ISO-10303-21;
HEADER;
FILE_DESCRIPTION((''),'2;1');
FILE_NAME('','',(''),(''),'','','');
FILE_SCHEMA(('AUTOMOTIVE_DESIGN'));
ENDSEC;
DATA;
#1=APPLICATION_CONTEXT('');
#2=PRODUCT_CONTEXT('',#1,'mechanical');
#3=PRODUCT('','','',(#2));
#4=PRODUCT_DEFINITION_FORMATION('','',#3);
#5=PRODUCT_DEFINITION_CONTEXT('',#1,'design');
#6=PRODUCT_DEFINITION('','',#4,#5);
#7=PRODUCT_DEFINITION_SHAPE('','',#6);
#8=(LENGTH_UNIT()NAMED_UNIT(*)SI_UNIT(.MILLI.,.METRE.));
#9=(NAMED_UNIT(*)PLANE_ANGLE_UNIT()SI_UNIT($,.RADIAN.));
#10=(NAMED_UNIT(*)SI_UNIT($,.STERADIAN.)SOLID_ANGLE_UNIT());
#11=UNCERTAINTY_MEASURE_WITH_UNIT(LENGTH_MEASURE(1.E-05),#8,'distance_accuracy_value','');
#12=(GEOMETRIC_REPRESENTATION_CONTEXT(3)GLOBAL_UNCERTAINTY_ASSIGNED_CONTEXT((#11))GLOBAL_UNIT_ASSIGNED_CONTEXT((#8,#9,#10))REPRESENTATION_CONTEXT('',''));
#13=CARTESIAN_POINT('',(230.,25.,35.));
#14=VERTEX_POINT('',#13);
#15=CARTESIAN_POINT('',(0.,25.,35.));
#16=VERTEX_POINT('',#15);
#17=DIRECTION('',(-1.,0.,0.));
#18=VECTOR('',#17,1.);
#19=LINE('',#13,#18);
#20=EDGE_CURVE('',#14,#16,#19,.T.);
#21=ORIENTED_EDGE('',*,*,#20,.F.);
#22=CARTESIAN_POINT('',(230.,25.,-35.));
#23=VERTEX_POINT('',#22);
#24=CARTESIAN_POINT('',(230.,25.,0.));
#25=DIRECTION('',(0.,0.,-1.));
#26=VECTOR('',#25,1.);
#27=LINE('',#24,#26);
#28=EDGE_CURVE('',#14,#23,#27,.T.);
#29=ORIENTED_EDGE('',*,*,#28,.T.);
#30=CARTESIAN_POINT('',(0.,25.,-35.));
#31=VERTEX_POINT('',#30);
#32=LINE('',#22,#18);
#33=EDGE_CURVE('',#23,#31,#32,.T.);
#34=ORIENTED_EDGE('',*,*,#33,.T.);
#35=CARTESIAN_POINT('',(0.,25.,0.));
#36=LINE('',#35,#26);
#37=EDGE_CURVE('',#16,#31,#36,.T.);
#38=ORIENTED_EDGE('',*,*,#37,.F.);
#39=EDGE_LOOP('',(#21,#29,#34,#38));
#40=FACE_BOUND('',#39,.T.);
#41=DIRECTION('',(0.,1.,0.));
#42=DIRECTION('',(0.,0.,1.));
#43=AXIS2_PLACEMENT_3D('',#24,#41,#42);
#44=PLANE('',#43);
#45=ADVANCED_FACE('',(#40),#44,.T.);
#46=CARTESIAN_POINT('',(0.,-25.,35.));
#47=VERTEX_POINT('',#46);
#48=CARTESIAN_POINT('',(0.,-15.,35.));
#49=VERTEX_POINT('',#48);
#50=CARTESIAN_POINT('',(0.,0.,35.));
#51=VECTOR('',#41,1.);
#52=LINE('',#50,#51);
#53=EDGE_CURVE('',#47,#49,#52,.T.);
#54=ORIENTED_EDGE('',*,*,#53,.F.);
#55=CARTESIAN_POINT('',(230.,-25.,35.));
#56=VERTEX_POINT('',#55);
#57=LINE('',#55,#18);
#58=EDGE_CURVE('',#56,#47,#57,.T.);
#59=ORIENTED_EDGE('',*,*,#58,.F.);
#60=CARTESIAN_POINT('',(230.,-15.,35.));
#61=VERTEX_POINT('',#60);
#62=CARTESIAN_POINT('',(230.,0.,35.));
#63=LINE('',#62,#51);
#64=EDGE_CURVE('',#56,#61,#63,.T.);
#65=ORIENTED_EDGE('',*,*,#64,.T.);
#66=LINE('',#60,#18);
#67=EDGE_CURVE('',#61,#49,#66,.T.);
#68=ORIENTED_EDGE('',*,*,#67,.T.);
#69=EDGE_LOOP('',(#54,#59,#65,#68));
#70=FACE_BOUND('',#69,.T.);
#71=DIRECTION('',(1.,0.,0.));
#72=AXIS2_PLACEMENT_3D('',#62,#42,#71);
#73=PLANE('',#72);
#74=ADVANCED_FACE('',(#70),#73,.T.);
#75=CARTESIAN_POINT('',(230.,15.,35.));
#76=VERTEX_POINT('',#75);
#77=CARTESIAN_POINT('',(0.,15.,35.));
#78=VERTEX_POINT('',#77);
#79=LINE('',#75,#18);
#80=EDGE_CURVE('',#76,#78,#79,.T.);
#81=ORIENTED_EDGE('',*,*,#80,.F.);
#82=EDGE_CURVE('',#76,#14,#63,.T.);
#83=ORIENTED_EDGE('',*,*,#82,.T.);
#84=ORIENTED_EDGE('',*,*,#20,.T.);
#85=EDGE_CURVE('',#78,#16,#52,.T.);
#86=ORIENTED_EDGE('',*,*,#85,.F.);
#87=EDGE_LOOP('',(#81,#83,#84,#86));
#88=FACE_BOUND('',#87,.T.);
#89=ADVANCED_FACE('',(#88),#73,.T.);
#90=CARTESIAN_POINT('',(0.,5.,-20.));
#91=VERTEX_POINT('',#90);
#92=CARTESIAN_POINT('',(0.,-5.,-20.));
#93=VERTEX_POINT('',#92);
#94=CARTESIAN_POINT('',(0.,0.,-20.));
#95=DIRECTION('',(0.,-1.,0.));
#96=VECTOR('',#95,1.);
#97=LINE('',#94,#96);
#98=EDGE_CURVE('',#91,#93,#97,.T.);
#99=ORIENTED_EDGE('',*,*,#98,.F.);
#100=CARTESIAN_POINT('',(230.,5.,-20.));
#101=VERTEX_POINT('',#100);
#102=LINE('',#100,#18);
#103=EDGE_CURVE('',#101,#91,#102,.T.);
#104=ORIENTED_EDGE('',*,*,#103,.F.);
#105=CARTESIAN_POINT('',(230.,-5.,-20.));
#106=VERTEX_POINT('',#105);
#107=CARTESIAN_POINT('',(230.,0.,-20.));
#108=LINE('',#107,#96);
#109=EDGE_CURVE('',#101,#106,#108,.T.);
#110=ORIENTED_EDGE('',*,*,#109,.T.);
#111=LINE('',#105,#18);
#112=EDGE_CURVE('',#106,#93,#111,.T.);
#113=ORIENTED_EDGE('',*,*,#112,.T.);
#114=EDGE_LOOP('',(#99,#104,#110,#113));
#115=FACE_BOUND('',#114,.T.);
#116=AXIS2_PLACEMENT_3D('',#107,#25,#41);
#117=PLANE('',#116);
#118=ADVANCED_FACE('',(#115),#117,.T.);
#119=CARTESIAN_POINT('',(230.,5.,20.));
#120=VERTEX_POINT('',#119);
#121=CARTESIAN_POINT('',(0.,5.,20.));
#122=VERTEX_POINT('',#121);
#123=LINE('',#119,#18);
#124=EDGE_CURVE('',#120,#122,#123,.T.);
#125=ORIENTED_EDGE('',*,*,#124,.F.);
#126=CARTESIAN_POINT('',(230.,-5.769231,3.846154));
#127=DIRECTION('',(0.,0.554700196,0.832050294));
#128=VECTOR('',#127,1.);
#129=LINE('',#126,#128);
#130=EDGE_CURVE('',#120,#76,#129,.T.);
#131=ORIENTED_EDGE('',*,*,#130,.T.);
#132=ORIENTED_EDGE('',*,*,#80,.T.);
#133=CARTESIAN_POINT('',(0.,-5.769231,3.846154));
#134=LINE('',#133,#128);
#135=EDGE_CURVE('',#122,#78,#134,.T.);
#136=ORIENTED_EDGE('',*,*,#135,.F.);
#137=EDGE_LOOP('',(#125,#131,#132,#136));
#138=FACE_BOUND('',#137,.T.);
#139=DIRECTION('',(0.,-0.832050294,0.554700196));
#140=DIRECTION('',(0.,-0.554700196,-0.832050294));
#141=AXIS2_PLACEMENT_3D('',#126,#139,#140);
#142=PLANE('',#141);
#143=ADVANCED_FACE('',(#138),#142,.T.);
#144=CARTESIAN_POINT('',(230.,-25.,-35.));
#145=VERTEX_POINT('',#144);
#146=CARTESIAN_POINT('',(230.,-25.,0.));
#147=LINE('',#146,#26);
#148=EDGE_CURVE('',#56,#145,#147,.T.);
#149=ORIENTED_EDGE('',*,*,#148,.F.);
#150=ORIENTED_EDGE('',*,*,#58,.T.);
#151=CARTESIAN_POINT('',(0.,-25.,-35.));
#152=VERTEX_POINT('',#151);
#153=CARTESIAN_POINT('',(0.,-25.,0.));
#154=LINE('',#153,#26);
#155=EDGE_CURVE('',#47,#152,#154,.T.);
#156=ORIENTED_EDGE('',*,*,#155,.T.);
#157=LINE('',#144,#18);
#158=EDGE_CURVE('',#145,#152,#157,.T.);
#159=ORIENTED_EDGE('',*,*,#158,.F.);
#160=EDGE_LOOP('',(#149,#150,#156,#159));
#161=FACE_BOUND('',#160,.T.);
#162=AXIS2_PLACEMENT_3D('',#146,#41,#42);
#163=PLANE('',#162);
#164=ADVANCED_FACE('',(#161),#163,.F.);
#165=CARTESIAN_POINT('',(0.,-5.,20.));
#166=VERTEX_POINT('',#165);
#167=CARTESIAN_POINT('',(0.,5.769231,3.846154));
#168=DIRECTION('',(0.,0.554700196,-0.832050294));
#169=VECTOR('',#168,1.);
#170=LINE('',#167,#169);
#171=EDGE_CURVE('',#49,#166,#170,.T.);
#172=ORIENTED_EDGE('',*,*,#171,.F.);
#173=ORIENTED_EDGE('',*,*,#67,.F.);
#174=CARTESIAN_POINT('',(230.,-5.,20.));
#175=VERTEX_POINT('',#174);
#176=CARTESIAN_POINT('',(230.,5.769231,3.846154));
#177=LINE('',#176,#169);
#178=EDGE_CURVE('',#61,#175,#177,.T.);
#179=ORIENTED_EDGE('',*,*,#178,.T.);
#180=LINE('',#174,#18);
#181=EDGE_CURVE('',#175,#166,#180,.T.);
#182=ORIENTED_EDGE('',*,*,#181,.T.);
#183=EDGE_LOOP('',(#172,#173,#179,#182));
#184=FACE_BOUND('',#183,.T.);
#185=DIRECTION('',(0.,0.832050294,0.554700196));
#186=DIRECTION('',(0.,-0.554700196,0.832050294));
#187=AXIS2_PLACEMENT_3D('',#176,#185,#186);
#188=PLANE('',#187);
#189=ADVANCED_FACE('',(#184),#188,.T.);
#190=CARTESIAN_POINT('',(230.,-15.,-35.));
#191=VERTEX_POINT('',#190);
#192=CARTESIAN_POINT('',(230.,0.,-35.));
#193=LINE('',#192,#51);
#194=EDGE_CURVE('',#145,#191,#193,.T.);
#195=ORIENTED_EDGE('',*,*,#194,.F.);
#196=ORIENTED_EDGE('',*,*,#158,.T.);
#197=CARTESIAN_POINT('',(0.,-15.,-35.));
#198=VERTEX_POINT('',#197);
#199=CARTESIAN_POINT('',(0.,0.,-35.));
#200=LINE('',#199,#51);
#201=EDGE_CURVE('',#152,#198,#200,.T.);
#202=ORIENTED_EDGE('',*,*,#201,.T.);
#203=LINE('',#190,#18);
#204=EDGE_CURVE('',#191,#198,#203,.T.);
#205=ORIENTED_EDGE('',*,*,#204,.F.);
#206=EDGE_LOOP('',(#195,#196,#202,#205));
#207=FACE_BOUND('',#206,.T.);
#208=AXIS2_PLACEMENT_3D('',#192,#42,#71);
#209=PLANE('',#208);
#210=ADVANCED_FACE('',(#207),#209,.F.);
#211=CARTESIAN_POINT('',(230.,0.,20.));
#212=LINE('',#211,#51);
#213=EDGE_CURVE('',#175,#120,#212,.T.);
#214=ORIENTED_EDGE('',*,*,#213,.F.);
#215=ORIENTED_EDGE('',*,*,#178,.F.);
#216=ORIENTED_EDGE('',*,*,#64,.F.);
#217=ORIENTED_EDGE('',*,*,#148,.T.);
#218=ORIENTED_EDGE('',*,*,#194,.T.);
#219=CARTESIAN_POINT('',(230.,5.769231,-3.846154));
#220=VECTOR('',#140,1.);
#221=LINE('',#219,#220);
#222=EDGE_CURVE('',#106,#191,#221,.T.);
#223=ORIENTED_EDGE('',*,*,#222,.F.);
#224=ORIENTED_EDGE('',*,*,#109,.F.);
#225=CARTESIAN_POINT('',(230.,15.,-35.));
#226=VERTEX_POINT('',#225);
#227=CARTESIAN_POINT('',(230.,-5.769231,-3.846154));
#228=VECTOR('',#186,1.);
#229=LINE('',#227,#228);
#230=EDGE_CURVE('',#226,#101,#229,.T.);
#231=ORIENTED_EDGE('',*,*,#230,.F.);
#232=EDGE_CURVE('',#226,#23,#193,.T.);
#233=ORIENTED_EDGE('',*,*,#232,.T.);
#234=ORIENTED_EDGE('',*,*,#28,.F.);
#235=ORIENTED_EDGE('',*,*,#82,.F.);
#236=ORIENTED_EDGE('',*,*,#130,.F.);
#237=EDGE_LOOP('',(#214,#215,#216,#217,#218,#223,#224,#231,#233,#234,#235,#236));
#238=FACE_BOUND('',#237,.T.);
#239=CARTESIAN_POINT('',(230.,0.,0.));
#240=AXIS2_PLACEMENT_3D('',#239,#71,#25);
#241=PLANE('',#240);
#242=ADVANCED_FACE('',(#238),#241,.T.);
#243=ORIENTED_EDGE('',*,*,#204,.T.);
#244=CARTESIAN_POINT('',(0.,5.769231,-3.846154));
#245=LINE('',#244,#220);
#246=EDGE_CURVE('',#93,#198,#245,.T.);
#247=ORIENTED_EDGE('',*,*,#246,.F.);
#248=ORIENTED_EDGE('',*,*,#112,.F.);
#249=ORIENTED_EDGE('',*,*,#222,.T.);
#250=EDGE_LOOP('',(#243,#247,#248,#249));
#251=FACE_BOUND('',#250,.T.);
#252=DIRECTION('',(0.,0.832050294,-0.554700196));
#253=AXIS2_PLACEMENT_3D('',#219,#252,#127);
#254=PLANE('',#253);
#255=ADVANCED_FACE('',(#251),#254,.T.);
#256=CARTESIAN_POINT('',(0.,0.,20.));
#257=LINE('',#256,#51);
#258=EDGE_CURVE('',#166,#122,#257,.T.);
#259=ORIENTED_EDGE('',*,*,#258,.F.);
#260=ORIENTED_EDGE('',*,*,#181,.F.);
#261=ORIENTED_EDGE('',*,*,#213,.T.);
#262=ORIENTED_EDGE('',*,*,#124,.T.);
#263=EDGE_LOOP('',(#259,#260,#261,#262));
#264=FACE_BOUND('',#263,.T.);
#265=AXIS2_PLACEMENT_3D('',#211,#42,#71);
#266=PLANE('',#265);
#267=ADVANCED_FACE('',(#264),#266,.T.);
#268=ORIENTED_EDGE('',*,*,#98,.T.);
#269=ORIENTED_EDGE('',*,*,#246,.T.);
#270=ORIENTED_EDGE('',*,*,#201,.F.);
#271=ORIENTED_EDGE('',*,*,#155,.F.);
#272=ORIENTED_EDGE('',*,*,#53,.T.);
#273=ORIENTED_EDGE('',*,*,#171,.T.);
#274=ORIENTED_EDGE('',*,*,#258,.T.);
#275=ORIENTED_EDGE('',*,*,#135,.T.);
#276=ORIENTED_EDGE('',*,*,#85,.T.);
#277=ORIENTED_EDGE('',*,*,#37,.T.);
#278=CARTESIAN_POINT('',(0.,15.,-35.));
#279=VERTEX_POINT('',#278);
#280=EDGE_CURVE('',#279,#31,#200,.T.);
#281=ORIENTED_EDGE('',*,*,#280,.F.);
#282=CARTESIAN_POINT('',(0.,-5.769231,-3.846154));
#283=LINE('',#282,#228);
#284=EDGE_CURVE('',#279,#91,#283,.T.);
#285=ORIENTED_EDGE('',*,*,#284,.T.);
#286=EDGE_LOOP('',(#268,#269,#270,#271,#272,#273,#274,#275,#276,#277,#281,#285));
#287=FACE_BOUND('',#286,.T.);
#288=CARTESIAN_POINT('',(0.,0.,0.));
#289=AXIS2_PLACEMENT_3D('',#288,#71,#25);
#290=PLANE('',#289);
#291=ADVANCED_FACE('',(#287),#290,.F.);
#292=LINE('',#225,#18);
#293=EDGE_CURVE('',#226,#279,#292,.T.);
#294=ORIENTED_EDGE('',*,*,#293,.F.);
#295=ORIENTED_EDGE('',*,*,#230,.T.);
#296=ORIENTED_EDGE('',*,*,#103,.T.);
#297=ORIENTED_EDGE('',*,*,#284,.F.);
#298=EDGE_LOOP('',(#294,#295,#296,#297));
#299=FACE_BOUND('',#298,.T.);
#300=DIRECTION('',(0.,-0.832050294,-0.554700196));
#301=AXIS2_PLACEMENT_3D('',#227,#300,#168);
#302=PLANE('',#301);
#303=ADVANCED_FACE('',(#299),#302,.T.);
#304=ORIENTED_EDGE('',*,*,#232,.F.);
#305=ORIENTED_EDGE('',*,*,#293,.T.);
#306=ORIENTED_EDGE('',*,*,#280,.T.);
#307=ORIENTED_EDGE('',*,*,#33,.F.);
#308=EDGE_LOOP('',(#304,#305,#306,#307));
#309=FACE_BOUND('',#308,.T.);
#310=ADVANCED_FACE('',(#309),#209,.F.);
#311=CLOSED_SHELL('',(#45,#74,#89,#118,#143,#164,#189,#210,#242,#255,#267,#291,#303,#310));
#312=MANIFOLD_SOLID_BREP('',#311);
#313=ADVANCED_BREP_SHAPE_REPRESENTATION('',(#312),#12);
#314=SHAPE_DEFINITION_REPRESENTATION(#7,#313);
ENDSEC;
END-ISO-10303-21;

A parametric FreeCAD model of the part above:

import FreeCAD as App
import Part
import Sketcher

V = App.Vector
Q = App.Units.Quantity

doc = App.newDocument("Part")
body = doc.addObject("PartDesign::Body", "Body")

# Sketch on YZ plane
sketch1 = body.newObject("Sketcher::SketchObject", "Sketch")
sketch1.AttachmentSupport = (doc.getObject("YZ_Plane"), [""])
sketch1.MapMode = "FlatFace"
sketch1.addGeometry([
    Part.LineSegment(V(-5, 20, 0), V(-15, 35, 0)),  # 0
    Part.LineSegment(V(-15, 35, 0), V(-25, 35, 0)),  # 1
    Part.LineSegment(V(-25, 35, 0), V(-25, -35, 0)),  # 2
    Part.LineSegment(V(-25, -35, 0), V(-15, -35, 0)),  # 3
    Part.LineSegment(V(-15, -35, 0), V(-5, -20, 0)),  # 4
    Part.LineSegment(V(-5, -20, 0), V(5, -20, 0)),  # 5
    Part.LineSegment(V(5, -20, 0), V(15, -35, 0)),  # 6
    Part.LineSegment(V(15, -35, 0), V(25, -35, 0)),  # 7
    Part.LineSegment(V(25, -35, 0), V(25, 35, 0)),  # 8
    Part.LineSegment(V(25, 35, 0), V(15, 35, 0)),  # 9
    Part.LineSegment(V(15, 35, 0), V(5, 20, 0)),  # 10
    Part.LineSegment(V(5, 20, 0), V(-5, 20, 0)),  # 11
], False)
sketch1.addConstraint([
    Sketcher.Constraint("Coincident", 0, 2, 1, 1),
    Sketcher.Constraint("Coincident", 1, 2, 2, 1),
    Sketcher.Constraint("Coincident", 2, 2, 3, 1),
    Sketcher.Constraint("Coincident", 3, 2, 4, 1),
    Sketcher.Constraint("Coincident", 4, 2, 5, 1),
    Sketcher.Constraint("Coincident", 5, 2, 6, 1),
    Sketcher.Constraint("Coincident", 6, 2, 7, 1),
    Sketcher.Constraint("Coincident", 7, 2, 8, 1),
    Sketcher.Constraint("Coincident", 8, 2, 9, 1),
    Sketcher.Constraint("Coincident", 9, 2, 10, 1),
    Sketcher.Constraint("Coincident", 10, 2, 11, 1),
    Sketcher.Constraint("Coincident", 11, 2, 0, 1),
    Sketcher.Constraint("Horizontal", 1),
    Sketcher.Constraint("Vertical", 2),
    Sketcher.Constraint("Horizontal", 3),
    Sketcher.Constraint("Horizontal", 5),
    Sketcher.Constraint("Horizontal", 7),
    Sketcher.Constraint("Vertical", 8),
    Sketcher.Constraint("Horizontal", 9),
    Sketcher.Constraint("Horizontal", 11),
    Sketcher.Constraint("Symmetric", 0, 2, 6, 2, -1, 1),
    Sketcher.Constraint("Symmetric", 2, 2, 8, 2, -1, 1),
    Sketcher.Constraint("Symmetric", 4, 2, 10, 2, -1, 1),
    Sketcher.Constraint("Symmetric", 3, 2, 6, 2, -2),
    Sketcher.Constraint("Parallel", 0, 6),
    Sketcher.Constraint("Parallel", 4, 10),
    Sketcher.Constraint("Vertical", 5, 2, 10, 2),
    Sketcher.Constraint("Equal", 3, 5),
    Sketcher.Constraint("DistanceX", 1, 2, 1, 1, Q("10 mm")),
    Sketcher.Constraint("DistanceY", 2, 2, 2, 1, Q("70 mm")),
    Sketcher.Constraint("DistanceX", 0, 2, -1, 1, Q("15 mm")),
    Sketcher.Constraint("DistanceY", 4, 2, -1, 1, Q("20 mm")),
])
pad1 = body.newObject("PartDesign::Pad", "Pad")
pad1.Profile = sketch1
pad1.Length = 230

doc.recompute()
